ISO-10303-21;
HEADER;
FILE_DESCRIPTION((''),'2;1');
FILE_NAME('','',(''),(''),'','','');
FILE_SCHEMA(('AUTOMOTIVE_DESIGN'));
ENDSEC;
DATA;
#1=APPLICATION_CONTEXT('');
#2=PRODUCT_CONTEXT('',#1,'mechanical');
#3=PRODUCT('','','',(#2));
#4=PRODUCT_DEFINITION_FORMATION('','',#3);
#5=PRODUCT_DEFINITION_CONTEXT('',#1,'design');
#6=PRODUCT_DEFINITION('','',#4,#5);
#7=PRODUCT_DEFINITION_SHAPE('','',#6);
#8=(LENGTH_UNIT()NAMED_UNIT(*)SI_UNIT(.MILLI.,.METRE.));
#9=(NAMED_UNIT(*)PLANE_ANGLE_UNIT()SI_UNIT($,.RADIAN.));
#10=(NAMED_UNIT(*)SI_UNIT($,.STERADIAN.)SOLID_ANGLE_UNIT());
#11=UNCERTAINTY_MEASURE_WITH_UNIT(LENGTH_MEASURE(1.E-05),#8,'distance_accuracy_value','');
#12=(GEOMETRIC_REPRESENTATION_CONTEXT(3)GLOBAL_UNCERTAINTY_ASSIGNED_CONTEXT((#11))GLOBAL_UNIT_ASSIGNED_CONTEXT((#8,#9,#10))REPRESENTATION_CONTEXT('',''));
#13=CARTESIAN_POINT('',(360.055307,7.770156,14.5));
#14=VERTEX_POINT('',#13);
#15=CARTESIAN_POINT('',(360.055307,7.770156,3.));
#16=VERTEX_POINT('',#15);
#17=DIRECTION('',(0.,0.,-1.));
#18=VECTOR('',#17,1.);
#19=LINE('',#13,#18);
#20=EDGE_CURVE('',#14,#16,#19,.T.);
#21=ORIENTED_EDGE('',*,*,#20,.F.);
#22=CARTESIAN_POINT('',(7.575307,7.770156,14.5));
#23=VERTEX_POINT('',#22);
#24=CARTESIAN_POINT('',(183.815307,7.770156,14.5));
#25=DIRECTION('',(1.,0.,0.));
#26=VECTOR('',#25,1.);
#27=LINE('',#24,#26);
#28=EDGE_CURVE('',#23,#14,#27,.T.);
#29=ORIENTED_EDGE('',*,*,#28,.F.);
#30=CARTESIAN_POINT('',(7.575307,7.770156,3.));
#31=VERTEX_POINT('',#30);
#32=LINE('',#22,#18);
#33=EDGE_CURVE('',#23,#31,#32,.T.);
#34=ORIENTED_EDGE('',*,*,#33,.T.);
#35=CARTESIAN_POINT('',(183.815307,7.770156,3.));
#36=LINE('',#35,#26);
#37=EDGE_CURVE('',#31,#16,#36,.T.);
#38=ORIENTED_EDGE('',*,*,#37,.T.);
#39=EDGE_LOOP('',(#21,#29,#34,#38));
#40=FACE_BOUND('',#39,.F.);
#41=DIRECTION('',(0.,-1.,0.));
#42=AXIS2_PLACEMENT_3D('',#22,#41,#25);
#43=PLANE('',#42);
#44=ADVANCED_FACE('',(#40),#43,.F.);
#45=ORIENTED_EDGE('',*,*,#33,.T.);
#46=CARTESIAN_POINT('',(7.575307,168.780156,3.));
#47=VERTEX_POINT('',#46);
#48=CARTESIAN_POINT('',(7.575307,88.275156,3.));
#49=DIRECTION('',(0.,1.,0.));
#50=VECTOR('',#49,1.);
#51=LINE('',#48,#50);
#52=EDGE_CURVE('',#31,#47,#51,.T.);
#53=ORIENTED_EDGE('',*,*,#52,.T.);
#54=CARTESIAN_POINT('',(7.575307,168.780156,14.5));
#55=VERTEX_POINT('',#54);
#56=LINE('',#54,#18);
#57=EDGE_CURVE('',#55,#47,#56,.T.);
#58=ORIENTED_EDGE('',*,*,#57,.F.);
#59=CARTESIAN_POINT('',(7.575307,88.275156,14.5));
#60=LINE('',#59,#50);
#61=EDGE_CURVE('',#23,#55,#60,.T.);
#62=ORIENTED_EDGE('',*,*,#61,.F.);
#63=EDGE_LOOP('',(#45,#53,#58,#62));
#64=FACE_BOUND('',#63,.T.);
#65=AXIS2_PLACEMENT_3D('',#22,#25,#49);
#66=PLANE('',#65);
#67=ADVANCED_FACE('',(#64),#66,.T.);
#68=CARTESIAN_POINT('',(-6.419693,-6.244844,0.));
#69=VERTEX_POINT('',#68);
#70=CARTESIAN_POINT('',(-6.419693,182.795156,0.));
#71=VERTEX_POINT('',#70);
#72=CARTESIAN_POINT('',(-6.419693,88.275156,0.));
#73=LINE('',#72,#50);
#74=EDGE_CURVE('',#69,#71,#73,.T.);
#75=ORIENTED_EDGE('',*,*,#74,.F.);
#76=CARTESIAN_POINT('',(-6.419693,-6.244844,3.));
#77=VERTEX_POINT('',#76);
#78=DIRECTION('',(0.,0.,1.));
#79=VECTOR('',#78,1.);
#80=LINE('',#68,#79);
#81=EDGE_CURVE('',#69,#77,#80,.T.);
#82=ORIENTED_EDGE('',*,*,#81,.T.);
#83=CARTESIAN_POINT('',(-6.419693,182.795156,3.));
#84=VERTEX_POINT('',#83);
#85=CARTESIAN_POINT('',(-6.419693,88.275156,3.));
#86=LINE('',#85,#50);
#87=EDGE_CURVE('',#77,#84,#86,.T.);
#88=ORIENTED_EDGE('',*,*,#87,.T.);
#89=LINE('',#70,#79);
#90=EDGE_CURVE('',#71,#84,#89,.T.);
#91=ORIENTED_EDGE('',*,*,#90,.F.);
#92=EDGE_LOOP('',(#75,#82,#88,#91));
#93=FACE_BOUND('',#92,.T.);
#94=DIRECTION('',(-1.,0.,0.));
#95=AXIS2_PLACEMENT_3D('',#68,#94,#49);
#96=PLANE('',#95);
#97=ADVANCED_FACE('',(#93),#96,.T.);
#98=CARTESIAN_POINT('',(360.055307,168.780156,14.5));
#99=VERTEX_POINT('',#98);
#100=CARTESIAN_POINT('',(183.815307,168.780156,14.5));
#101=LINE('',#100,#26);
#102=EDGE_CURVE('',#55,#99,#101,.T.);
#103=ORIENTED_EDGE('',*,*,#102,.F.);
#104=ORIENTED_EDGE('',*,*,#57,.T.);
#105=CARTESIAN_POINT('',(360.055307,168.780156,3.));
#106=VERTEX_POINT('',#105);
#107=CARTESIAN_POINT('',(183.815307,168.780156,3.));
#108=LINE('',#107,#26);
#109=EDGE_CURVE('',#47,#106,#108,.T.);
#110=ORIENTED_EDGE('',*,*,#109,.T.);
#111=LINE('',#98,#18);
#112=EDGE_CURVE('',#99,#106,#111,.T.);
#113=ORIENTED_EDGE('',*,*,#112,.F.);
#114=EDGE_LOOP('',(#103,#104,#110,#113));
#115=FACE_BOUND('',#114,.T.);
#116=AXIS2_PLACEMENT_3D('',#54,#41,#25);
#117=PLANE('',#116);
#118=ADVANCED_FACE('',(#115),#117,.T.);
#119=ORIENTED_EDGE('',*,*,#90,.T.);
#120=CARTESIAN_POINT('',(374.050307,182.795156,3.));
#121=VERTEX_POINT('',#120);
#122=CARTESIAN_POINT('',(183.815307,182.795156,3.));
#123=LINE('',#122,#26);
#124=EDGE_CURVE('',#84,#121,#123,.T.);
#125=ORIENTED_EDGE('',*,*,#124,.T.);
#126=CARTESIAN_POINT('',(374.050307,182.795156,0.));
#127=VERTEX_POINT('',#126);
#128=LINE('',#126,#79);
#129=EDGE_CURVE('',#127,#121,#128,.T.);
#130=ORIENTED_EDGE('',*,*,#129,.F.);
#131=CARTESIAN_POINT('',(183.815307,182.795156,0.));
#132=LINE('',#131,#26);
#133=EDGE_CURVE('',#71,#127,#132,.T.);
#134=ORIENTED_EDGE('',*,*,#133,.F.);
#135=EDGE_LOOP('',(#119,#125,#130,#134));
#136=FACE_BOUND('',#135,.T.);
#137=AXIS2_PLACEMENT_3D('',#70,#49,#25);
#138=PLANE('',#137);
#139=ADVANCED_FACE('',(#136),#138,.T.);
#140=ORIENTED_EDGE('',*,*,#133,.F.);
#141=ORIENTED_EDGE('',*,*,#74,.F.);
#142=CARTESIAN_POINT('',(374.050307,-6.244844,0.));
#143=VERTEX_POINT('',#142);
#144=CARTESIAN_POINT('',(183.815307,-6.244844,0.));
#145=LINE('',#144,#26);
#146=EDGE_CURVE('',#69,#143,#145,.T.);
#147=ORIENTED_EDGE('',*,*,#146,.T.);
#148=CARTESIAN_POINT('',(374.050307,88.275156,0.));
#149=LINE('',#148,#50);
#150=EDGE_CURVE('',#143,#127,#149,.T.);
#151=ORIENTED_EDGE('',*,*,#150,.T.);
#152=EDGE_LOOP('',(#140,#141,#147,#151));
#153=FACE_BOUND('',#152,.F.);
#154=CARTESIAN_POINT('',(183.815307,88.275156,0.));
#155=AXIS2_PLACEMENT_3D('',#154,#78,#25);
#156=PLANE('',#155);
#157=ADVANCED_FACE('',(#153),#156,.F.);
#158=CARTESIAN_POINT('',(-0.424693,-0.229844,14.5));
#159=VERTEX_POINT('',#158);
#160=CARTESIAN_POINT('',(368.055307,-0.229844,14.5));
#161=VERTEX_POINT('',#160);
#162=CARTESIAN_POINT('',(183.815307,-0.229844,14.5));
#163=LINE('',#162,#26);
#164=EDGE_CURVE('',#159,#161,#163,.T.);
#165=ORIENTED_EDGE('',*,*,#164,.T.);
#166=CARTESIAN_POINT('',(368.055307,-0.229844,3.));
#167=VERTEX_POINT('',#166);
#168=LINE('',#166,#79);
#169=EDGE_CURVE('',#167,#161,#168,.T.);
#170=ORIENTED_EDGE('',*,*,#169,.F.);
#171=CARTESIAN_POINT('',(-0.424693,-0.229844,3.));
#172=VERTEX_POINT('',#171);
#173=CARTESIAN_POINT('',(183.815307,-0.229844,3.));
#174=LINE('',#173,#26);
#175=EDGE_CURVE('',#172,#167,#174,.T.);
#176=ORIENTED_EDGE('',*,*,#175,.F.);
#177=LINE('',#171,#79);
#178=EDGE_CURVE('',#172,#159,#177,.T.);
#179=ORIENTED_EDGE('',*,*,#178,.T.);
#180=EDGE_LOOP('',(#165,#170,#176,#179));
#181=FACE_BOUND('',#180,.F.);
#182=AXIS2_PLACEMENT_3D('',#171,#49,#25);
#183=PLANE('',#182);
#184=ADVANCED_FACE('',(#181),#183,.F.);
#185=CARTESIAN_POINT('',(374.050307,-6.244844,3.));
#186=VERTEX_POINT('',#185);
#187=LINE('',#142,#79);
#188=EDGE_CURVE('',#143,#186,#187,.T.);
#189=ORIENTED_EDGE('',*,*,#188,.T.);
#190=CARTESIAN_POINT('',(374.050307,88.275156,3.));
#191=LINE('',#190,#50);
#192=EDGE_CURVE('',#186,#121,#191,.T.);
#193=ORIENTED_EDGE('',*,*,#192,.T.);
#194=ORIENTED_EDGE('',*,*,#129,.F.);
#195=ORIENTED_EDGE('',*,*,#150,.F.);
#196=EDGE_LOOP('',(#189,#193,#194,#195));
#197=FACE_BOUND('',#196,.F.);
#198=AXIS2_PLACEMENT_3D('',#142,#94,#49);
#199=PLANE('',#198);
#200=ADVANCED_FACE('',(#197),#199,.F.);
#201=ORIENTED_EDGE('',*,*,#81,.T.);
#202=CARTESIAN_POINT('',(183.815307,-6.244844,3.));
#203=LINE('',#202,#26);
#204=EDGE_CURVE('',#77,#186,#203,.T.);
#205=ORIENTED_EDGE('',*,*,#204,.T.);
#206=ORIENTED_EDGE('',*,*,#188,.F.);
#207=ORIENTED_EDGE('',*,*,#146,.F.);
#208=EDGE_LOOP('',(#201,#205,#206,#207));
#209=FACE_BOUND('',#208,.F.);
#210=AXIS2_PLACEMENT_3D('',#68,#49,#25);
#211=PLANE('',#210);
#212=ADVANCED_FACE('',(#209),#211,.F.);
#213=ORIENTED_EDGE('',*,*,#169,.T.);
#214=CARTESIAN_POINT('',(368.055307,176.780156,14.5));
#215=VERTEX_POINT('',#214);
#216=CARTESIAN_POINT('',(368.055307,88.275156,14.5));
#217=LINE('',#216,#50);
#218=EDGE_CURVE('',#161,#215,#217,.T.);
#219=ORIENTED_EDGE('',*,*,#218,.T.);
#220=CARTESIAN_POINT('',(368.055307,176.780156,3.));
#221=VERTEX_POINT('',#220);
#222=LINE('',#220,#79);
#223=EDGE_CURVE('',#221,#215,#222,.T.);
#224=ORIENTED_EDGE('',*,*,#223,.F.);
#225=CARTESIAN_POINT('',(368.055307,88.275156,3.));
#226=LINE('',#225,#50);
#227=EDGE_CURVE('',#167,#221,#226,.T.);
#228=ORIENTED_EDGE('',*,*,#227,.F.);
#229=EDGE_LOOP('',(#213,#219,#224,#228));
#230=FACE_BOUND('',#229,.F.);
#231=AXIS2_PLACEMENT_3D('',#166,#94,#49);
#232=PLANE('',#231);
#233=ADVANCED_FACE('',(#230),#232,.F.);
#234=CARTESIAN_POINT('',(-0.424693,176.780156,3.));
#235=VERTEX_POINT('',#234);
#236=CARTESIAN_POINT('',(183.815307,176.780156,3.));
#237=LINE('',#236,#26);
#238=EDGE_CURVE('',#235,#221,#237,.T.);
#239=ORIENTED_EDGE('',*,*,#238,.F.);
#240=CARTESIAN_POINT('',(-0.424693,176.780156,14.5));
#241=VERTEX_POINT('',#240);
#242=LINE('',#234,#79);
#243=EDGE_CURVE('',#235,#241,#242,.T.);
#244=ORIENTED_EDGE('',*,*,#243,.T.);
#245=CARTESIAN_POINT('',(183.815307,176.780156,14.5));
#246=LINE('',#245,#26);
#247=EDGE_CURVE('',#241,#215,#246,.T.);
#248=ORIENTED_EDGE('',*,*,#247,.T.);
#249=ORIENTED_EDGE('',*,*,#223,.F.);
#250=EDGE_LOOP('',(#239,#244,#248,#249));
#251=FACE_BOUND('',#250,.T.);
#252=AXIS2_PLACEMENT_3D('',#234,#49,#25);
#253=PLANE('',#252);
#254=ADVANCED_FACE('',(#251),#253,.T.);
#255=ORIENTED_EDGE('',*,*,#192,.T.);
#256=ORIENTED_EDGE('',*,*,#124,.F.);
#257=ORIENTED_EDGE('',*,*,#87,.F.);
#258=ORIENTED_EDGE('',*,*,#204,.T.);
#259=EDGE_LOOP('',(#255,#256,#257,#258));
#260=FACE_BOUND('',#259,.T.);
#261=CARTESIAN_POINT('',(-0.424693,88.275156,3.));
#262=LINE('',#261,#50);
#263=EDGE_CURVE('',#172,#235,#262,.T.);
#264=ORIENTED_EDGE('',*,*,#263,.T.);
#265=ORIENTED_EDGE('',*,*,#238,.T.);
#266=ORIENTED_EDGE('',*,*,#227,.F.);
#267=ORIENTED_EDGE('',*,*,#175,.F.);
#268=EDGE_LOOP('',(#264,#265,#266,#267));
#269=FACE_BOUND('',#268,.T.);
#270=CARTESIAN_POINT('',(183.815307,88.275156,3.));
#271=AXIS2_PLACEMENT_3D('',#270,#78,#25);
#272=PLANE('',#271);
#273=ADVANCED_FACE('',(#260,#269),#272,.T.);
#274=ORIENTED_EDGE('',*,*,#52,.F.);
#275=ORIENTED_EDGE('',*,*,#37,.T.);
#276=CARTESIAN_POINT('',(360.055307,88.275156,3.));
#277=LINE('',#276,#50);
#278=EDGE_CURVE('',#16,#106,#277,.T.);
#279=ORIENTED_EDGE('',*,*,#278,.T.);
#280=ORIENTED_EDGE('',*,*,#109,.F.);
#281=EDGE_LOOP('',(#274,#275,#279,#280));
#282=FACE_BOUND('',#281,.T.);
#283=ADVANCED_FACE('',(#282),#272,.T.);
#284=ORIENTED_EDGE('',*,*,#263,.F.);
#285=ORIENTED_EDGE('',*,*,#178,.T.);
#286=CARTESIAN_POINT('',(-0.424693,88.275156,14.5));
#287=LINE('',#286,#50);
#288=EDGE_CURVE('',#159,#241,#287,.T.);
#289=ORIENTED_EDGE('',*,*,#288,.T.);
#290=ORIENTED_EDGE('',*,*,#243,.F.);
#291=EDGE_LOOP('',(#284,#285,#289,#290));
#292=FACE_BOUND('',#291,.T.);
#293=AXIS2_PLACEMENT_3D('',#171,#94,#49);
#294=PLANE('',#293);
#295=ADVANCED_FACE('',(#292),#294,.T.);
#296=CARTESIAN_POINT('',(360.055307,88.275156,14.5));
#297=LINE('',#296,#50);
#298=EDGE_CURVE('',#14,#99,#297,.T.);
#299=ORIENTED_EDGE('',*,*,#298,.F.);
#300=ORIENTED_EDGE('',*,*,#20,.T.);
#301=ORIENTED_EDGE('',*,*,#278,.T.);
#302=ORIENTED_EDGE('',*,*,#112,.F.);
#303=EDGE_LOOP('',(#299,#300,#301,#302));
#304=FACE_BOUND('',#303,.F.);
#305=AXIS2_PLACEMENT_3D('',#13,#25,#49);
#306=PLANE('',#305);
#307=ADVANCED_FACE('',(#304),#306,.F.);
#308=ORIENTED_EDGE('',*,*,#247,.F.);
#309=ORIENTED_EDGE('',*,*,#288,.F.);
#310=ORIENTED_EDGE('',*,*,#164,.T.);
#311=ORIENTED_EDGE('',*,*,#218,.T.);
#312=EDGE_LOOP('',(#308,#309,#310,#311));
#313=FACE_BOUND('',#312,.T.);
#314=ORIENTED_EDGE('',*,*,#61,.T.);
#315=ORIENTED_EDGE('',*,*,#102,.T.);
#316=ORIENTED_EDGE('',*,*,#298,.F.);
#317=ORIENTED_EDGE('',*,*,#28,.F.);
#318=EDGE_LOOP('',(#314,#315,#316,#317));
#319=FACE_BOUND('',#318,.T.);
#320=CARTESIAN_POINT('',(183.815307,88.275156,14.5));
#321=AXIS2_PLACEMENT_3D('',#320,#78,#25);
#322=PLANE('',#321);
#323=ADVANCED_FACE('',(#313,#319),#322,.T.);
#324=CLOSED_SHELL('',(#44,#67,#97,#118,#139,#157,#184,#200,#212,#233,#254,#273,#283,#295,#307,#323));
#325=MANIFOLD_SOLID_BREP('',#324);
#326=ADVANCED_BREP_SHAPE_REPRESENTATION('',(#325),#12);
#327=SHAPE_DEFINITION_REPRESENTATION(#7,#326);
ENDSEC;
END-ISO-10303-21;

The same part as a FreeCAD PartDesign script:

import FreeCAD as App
import Part
import Sketcher
from FreeCAD import Vector

doc = App.newDocument("Part")
params = doc.addObject("Spreadsheet::Sheet", "Params")
for row, (alias, value) in enumerate([
    ("sketch1_width", "380.47 mm"),
    ("sketch1_height", "189.04 mm"),
    ("pad1_length", "3 mm"),
    ("sketch2_width", "368.48 mm"),
    ("sketch2_height", "177.01 mm"),
    ("pad2_length", "11.5 mm"),
    ("sketch3_width", "352.48 mm"),
    ("sketch3_height", "161.01 mm"),
    ("pocket1_length", "11.5 mm"),
], start=1):
    params.set(f"A{row}", alias)
    params.set(f"B{row}", "=" + value)
    params.setAlias(f"B{row}", alias)

body = doc.addObject("PartDesign::Body", "Body")

# Sketch on XY plane
sketch1 = doc.addObject("Sketcher::SketchObject", "Sketch")
body.addObject(sketch1)
sketch1.AttachmentSupport = (doc.XY_Plane, [""])
sketch1.MapMode = "FlatFace"
sketch1.addGeometry([
    Part.LineSegment(Vector(-6, 183, 0), Vector(-6, -6, 0)),
    Part.LineSegment(Vector(-6, -6, 0), Vector(374, -6, 0)),
    Part.LineSegment(Vector(374, -6, 0), Vector(374, 183, 0)),
    Part.LineSegment(Vector(374, 183, 0), Vector(-6, 183, 0)),
], False)
sketch1.addConstraint([
    Sketcher.Constraint("Coincident", 0, 2, 1, 1),
    Sketcher.Constraint("Coincident", 1, 2, 2, 1),
    Sketcher.Constraint("Coincident", 2, 2, 3, 1),
    Sketcher.Constraint("Coincident", 3, 2, 0, 1),
    Sketcher.Constraint("Vertical", 0),
    Sketcher.Constraint("Horizontal", 1),
    Sketcher.Constraint("Vertical", 2),
    Sketcher.Constraint("Horizontal", 3),
    Sketcher.Constraint("DistanceX", 1, 1, 1, 2, 380.47),
    Sketcher.Constraint("DistanceY", 0, 2, 0, 1, 189.04),
    Sketcher.Constraint("DistanceX", 0, 2, -1, 1, 6.419693),
    Sketcher.Constraint("DistanceY", 0, 2, -1, 1, 6.244844),
])
sketch1.setExpression("Constraints[8]", "Params.sketch1_width")
sketch1.setExpression("Constraints[9]", "Params.sketch1_height")
pad1 = doc.addObject("PartDesign::Pad", "Pad")
body.addObject(pad1)
pad1.Profile = sketch1
pad1.setExpression("Length", "Params.pad1_length")

# Sketch on XY plane
sketch2 = doc.addObject("Sketcher::SketchObject", "Sketch001")
body.addObject(sketch2)
sketch2.AttachmentSupport = (doc.XY_Plane, [""])
sketch2.MapMode = "FlatFace"
sketch2.AttachmentOffset = App.Placement(Vector(0, 0, 3), App.Rotation())
sketch2.addGeometry([
    Part.LineSegment(Vector(0, 177, 0), Vector(0, 0, 0)),
    Part.LineSegment(Vector(0, 0, 0), Vector(368, 0, 0)),
    Part.LineSegment(Vector(368, 0, 0), Vector(368, 177, 0)),
    Part.LineSegment(Vector(368, 177, 0), Vector(0, 177, 0)),
], False)
sketch2.addConstraint([
    Sketcher.Constraint("Coincident", 0, 2, 1, 1),
    Sketcher.Constraint("Coincident", 1, 2, 2, 1),
    Sketcher.Constraint("Coincident", 2, 2, 3, 1),
    Sketcher.Constraint("Coincident", 3, 2, 0, 1),
    Sketcher.Constraint("Vertical", 0),
    Sketcher.Constraint("Horizontal", 1),
    Sketcher.Constraint("Vertical", 2),
    Sketcher.Constraint("Horizontal", 3),
    Sketcher.Constraint("DistanceX", 1, 1, 1, 2, 368.48),
    Sketcher.Constraint("DistanceY", 0, 2, 0, 1, 177.01),
    Sketcher.Constraint("DistanceX", 0, 2, -1, 1, 0.424693),
    Sketcher.Constraint("DistanceY", 0, 2, -1, 1, 0.229844),
])
sketch2.setExpression("Constraints[8]", "Params.sketch2_width")
sketch2.setExpression("Constraints[9]", "Params.sketch2_height")
pad2 = doc.addObject("PartDesign::Pad", "Pad001")
body.addObject(pad2)
pad2.Profile = sketch2
pad2.setExpression("Length", "Params.pad2_length")

# Sketch on XY plane
sketch3 = doc.addObject("Sketcher::SketchObject", "Sketch002")
body.addObject(sketch3)
sketch3.AttachmentSupport = (doc.XY_Plane, [""])
sketch3.MapMode = "FlatFace"
sketch3.AttachmentOffset = App.Placement(Vector(0, 0, 14.5), App.Rotation())
sketch3.addGeometry([
    Part.LineSegment(Vector(8, 169, 0), Vector(8, 8, 0)),
    Part.LineSegment(Vector(8, 8, 0), Vector(360, 8, 0)),
    Part.LineSegment(Vector(360, 8, 0), Vector(360, 169, 0)),
    Part.LineSegment(Vector(360, 169, 0), Vector(8, 169, 0)),
], False)
sketch3.addConstraint([
    Sketcher.Constraint("Coincident", 0, 2, 1, 1),
    Sketcher.Constraint("Coincident", 1, 2, 2, 1),
    Sketcher.Constraint("Coincident", 2, 2, 3, 1),
    Sketcher.Constraint("Coincident", 3, 2, 0, 1),
    Sketcher.Constraint("Vertical", 0),
    Sketcher.Constraint("Horizontal", 1),
    Sketcher.Constraint("Vertical", 2),
    Sketcher.Constraint("Horizontal", 3),
    Sketcher.Constraint("DistanceX", 1, 1, 1, 2, 352.48),
    Sketcher.Constraint("DistanceY", 0, 2, 0, 1, 161.01),
    Sketcher.Constraint("DistanceX", -1, 1, 0, 2, 7.575307),
    Sketcher.Constraint("DistanceY", -1, 1, 0, 2, 7.770156),
])
sketch3.setExpression("Constraints[8]", "Params.sketch3_width")
sketch3.setExpression("Constraints[9]", "Params.sketch3_height")
pocket1 = doc.addObject("PartDesign::Pocket", "Pocket")
body.addObject(pocket1)
pocket1.Profile = sketch3
pocket1.setExpression("Length", "Params.pocket1_length")

doc.recompute()
